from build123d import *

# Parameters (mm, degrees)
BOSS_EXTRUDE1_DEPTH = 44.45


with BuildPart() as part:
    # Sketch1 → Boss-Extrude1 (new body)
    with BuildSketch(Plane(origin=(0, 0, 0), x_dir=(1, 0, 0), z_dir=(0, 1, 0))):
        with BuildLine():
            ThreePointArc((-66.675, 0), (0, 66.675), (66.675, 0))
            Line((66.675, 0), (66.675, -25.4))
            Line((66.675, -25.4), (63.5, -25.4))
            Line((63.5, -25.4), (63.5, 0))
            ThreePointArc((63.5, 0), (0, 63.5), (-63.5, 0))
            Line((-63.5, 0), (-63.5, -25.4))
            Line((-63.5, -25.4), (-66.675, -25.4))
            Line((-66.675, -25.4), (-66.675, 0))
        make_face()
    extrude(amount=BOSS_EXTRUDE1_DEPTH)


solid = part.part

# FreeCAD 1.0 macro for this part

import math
import FreeCAD as App
import Part
import Sketcher
from FreeCAD import Vector
Q = App.Units.Quantity

doc = App.newDocument("Part")
params = doc.addObject("Spreadsheet::Sheet", "Params")
for row, (alias, value) in enumerate([
    ("sketch1_radius", "2.5 in"),
    ("sketch1_height", "1 in"),
    ("sketch1_radius2", "2.625 in"),
    ("pad1_length", "1.75 in"),
], start=1):
    params.set(f"A{row}", alias)
    params.set(f"B{row}", "=" + value)
    params.setAlias(f"B{row}", alias)

body = doc.addObject("PartDesign::Body", "Body")

# Sketch on XZ plane
sketch1 = body.newObject("Sketcher::SketchObject", "Sketch")
sketch1.AttachmentSupport = (doc.getObject("XZ_Plane"), [""])
sketch1.MapMode = "FlatFace"
sketch1.addGeometry(Part.ArcOfCircle(Part.Circle(Vector(0, 0, 0), Vector(0, 0, 1), 66.7), math.radians(180), math.radians(360)), False)
sketch1.addGeometry(Part.LineSegment(Vector(-66.7, 0, 0), Vector(-66.7, 25.4, 0)), False)
sketch1.addGeometry(Part.LineSegment(Vector(-66.7, 25.4, 0), Vector(-63.5, 25.4, 0)), False)
sketch1.addGeometry(Part.LineSegment(Vector(-63.5, 25.4, 0), Vector(-63.5, 0, 0)), False)
sketch1.addGeometry(Part.ArcOfCircle(Part.Circle(Vector(0, 0, 0), Vector(0, 0, 1), 63.5), math.radians(180), math.radians(360)), False)
sketch1.addGeometry(Part.LineSegment(Vector(63.5, 0, 0), Vector(63.5, 25.4, 0)), False)
sketch1.addGeometry(Part.LineSegment(Vector(63.5, 25.4, 0), Vector(66.7, 25.4, 0)), False)
sketch1.addGeometry(Part.LineSegment(Vector(66.7, 25.4, 0), Vector(66.7, 0, 0)), False)
sketch1.addConstraint(Sketcher.Constraint("Tangent", 0, 1, 1, 1))
sketch1.addConstraint(Sketcher.Constraint("Coincident", 1, 2, 2, 1))
sketch1.addConstraint(Sketcher.Constraint("Coincident", 2, 2, 3, 1))
sketch1.addConstraint(Sketcher.Constraint("Tangent", 3, 2, 4, 1))
sketch1.addConstraint(Sketcher.Constraint("Tangent", 4, 2, 5, 1))
sketch1.addConstraint(Sketcher.Constraint("Coincident", 5, 2, 6, 1))
sketch1.addConstraint(Sketcher.Constraint("Coincident", 6, 2, 7, 1))
sketch1.addConstraint(Sketcher.Constraint("Tangent", 7, 2, 0, 2))
sketch1.addConstraint(Sketcher.Constraint("Vertical", 1))
sketch1.addConstraint(Sketcher.Constraint("Horizontal", 2))
sketch1.addConstraint(Sketcher.Constraint("Vertical", 3))
sketch1.addConstraint(Sketcher.Constraint("Vertical", 5))
sketch1.addConstraint(Sketcher.Constraint("Horizontal", 6))
sketch1.addConstraint(Sketcher.Constraint("Vertical", 7))
sketch1.addConstraint(Sketcher.Constraint("Coincident", 0, 3, -1, 1))
sketch1.addConstraint(Sketcher.Constraint("Coincident", 4, 3, -1, 1))
sketch1.addConstraint(Sketcher.Constraint("Horizontal", 2, 2, 5, 2))
sketch1.addConstraint(Sketcher.Constraint("Radius", 4, Q("2.5 in")))
sketch1.addConstraint(Sketcher.Constraint("DistanceY", 1, 1, 1, 2, Q("1 in")))
sketch1.addConstraint(Sketcher.Constraint("Radius", 0, Q("2.625 in")))
sketch1.setExpression("Constraints[17]", "Params.sketch1_radius")
sketch1.setExpression("Constraints[18]", "Params.sketch1_height")
sketch1.setExpression("Constraints[19]", "Params.sketch1_radius2")
pad1 = body.newObject("PartDesign::Pad", "Pad")
pad1.Profile = sketch1
pad1.setExpression("Length", "Params.pad1_length")
pad1.Reversed = True

doc.recompute()
